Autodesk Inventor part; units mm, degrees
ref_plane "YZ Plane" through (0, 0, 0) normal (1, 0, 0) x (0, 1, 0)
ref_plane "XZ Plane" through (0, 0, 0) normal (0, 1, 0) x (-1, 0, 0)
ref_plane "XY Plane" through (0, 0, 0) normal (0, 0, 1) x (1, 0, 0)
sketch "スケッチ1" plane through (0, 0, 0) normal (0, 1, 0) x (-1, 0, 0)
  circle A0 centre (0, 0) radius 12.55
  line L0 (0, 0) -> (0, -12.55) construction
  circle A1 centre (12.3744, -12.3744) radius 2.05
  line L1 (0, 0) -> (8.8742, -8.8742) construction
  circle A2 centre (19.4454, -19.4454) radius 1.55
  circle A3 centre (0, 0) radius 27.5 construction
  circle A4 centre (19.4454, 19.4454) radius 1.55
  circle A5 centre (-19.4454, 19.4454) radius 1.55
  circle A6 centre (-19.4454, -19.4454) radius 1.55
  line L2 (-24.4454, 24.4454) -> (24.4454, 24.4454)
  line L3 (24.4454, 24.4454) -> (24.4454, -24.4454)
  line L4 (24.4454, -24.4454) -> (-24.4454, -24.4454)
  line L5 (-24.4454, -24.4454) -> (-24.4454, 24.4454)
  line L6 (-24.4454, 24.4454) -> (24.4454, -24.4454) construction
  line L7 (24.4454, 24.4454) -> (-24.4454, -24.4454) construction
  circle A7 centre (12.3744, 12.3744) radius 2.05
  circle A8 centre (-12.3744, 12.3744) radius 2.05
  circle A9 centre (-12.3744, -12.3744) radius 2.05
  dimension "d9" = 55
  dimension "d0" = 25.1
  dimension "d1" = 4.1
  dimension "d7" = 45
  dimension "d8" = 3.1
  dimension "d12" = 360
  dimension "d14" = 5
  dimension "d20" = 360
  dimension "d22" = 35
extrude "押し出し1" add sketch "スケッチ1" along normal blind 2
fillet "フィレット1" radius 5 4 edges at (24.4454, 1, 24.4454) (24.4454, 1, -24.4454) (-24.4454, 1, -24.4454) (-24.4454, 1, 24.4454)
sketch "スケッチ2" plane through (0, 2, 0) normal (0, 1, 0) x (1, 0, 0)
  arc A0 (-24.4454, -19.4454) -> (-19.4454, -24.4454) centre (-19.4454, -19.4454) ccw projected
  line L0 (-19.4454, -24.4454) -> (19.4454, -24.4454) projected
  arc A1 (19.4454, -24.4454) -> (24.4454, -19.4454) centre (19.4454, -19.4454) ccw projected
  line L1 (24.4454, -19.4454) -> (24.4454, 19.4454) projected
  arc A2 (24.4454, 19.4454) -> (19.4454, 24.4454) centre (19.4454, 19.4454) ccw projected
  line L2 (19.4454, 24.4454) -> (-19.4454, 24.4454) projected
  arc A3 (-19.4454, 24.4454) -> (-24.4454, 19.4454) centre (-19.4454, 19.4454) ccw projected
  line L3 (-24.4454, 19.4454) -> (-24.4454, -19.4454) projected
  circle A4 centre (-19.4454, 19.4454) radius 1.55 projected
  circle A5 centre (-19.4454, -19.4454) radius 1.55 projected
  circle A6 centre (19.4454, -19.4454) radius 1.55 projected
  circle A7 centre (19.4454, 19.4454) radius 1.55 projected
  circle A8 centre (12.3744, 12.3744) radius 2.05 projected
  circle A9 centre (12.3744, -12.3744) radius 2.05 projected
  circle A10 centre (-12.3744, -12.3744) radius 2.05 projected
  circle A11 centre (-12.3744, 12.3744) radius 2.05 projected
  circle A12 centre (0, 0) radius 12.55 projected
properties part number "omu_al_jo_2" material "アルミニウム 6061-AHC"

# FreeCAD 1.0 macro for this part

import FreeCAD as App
import Part
import Sketcher


def edges_at(feature, points):
    """Names of the edges that pass closest to the given points."""
    edges = feature.Shape.Edges
    near = lambda p: min(range(len(edges)), key=lambda i: edges[i].distToShape(Part.Vertex(*p))[0])
    return sorted({f"Edge{near(p) + 1}" for p in points})


def add_polygon(sketch, points):
    """Adds a closed chain of lines whose ends are joined by coincident constraints."""
    first, n = sketch.GeometryCount, len(points)
    for a, b in zip(points, points[1:] + points[:1]):
        sketch.addGeometry(Part.LineSegment(App.Vector(*a, 0), App.Vector(*b, 0)), False)
    for i in range(n):
        sketch.addConstraint(Sketcher.Constraint("Coincident", first + i, 2, first + (i + 1) % n, 1))

doc = App.newDocument("Part")
body = doc.addObject("PartDesign::Body", "Body")

# Sketch on XZ plane
sketch1 = body.newObject("Sketcher::SketchObject", "Sketch")
sketch1.AttachmentSupport = (doc.getObject("XZ_Plane"), [""])
sketch1.MapMode = "FlatFace"
add_polygon(sketch1, [(-24.4, 24.4), (24.4, 24.4), (24.4, -24.4), (-24.4, -24.4)])  # lines 0-3
sketch1.addGeometry(Part.Circle(App.Vector(19.4, -19.4, 0), App.Vector(0, 0, 1), 1.6), False)  # 4
sketch1.addGeometry(Part.Circle(App.Vector(12.4, -12.4, 0), App.Vector(0, 0, 1), 2), False)  # 5
sketch1.addGeometry(Part.Circle(App.Vector(-19.4, -19.4, 0), App.Vector(0, 0, 1), 1.6), False)  # 6
sketch1.addGeometry(Part.Circle(App.Vector(-12.4, -12.4, 0), App.Vector(0, 0, 1), 2), False)  # 7
sketch1.addGeometry(Part.Circle(App.Vector(12.4, 12.4, 0), App.Vector(0, 0, 1), 2), False)  # 8
sketch1.addGeometry(Part.Circle(App.Vector(19.4, 19.4, 0), App.Vector(0, 0, 1), 1.6), False)  # 9
sketch1.addGeometry(Part.Circle(App.Vector(0, 0, 0), App.Vector(0, 0, 1), 12.6), False)  # 10
sketch1.addGeometry(Part.Circle(App.Vector(-12.4, 12.4, 0), App.Vector(0, 0, 1), 2), False)  # 11
sketch1.addGeometry(Part.Circle(App.Vector(-19.4, 19.4, 0), App.Vector(0, 0, 1), 1.6), False)  # 12
sketch1.addConstraint(Sketcher.Constraint("Horizontal", 0))
sketch1.addConstraint(Sketcher.Constraint("Vertical", 1))
sketch1.addConstraint(Sketcher.Constraint("Horizontal", 2))
sketch1.addConstraint(Sketcher.Constraint("Vertical", 3))
sketch1.addConstraint(Sketcher.Constraint("Coincident", 10, 3, -1, 1))
sketch1.addConstraint(Sketcher.Constraint("Equal", 4, 6))
sketch1.addConstraint(Sketcher.Constraint("Equal", 5, 7))
sketch1.addConstraint(Sketcher.Constraint("Equal", 7, 8))
sketch1.addConstraint(Sketcher.Constraint("Equal", 6, 9))
sketch1.addConstraint(Sketcher.Constraint("Equal", 8, 11))
sketch1.addConstraint(Sketcher.Constraint("Equal", 9, 12))
sketch1.addConstraint(Sketcher.Constraint("Symmetric", 7, 3, 8, 3, -1, 1))
sketch1.addConstraint(Sketcher.Constraint("Symmetric", 6, 3, 9, 3, -1, 1))
sketch1.addConstraint(Sketcher.Constraint("Symmetric", 5, 3, 11, 3, -1, 1))
sketch1.addConstraint(Sketcher.Constraint("Symmetric", 4, 3, 12, 3, -1, 1))
sketch1.addConstraint(Sketcher.Constraint("Symmetric", 0, 2, 2, 2, -1, 1))
sketch1.addConstraint(Sketcher.Constraint("Symmetric", 4, 3, 6, 3, -2))
sketch1.addConstraint(Sketcher.Constraint("Symmetric", 5, 3, 7, 3, -2))
sketch1.addConstraint(Sketcher.Constraint("Equal", 2, 1))
sketch1.addConstraint(Sketcher.Constraint("Diameter", 4, 3.1))
sketch1.addConstraint(Sketcher.Constraint("Diameter", 5, 4.1))
sketch1.addConstraint(Sketcher.Constraint("Diameter", 10, 25.1))
sketch1.addConstraint(Sketcher.Constraint("DistanceX", 9, 3, 0, 2, 5.0))
sketch1.addConstraint(Sketcher.Constraint("DistanceY", 9, 3, 0, 2, 5.0))
sketch1.addConstraint(Sketcher.Constraint("DistanceX", 0, 1, 0, 2, 48.8908))
sketch1.addConstraint(Sketcher.Constraint("DistanceX", 5, 3, 4, 3, 7.071))
sketch1.addConstraint(Sketcher.Constraint("DistanceY", 4, 3, 5, 3, 7.071))
pad1 = body.newObject("PartDesign::Pad", "Pad")
pad1.Profile = sketch1
pad1.Length = 2
pad1.Reversed = True
doc.recompute()

fillet = body.newObject("PartDesign::Fillet", "Fillet")
fillet.Base = (pad1, edges_at(pad1, [
    (24.445, 1, 24.445),
    (24.445, 1, -24.445),
    (-24.445, 1, -24.445),
    (-24.445, 1, 24.445),
]))
fillet.Radius = 5

doc.recompute()
